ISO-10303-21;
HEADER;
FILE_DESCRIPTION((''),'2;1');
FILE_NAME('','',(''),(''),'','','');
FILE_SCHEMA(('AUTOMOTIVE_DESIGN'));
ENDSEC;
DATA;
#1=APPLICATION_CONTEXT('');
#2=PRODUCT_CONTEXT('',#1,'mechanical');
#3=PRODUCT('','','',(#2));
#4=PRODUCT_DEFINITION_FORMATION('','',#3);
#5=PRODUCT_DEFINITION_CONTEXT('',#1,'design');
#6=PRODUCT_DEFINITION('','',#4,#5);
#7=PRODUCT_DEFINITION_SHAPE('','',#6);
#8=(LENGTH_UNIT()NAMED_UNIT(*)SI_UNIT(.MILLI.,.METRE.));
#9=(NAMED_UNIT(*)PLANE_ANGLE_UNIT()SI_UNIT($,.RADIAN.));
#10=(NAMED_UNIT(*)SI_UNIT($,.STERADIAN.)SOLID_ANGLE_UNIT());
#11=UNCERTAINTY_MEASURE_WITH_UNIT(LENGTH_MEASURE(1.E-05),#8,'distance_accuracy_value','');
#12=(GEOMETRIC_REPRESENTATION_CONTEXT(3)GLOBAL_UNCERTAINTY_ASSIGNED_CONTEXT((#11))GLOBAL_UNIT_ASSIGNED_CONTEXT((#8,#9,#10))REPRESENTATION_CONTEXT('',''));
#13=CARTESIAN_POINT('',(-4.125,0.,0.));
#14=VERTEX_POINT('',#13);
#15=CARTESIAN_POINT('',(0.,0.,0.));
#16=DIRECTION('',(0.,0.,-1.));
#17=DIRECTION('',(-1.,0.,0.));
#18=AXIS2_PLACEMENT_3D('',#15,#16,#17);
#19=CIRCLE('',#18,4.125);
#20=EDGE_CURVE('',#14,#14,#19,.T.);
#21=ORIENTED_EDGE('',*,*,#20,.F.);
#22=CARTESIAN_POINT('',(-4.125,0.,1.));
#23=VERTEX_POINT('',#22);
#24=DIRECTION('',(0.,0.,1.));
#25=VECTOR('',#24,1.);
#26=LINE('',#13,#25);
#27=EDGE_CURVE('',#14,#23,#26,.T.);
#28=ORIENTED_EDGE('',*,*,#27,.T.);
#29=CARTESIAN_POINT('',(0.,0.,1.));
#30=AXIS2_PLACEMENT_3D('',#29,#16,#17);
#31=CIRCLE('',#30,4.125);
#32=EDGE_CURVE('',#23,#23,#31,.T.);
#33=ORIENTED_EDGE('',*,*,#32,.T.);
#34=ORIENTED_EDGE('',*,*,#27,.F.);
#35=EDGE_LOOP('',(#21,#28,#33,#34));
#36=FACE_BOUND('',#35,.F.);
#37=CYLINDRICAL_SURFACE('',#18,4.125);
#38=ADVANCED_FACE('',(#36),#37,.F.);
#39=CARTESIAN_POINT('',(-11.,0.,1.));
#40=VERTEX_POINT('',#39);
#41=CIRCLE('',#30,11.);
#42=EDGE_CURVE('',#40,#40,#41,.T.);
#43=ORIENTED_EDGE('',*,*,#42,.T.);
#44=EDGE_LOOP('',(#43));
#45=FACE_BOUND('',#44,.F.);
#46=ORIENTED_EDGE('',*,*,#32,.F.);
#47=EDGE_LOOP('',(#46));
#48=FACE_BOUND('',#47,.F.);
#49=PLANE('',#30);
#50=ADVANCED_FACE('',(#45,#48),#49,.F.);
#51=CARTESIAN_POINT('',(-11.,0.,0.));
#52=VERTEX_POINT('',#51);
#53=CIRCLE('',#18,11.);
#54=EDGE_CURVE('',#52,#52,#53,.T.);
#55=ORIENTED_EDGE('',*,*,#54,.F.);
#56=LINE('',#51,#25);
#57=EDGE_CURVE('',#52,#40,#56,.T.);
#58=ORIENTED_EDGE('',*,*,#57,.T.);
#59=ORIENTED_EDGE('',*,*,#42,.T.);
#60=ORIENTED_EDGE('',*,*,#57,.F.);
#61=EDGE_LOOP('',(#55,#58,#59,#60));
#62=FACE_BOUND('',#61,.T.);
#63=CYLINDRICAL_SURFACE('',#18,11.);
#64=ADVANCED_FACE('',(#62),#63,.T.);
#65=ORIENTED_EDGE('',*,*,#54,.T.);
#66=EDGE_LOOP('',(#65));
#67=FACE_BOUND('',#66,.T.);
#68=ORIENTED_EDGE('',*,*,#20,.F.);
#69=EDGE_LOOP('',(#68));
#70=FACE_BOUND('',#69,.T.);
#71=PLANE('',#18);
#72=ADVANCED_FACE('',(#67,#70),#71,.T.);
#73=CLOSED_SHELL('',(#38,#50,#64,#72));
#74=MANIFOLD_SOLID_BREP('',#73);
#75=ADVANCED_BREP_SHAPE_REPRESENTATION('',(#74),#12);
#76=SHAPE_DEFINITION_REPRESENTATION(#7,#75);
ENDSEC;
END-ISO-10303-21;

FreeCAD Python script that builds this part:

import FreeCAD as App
import Part
import Sketcher
Q = App.Units.Quantity

doc = App.newDocument("Part")
params = doc.addObject("Spreadsheet::Sheet", "Params")
for row, (alias, value) in enumerate([
    ("sketch1_diameter", "12 mm"),
    ("sketch1_diameter2", "6.25 mm"),
    ("pad1_length", "1 mm"),
    ("sketch2_diameter", "8.25 mm"),
    ("sketch2_diameter2", "6.25 mm"),
    ("sketch3_diameter", "22 mm"),
    ("sketch3_diameter2", "12 mm"),
    ("pad2_length", "1 mm"),
], start=1):
    params.set(f"A{row}", alias)
    params.set(f"B{row}", "=" + value)
    params.setAlias(f"B{row}", alias)

body = doc.addObject("PartDesign::Body", "Body")

sketch1 = body.newObject("Sketcher::SketchObject", "Sketch")
sketch1.AttachmentSupport = (doc.getObject("XY_Plane"), [""])
sketch1.MapMode = "FlatFace"
sketch1.addGeometry(Part.Circle(App.Vector(0, 0, 0), App.Vector(0, 0, 1), 6), False)
sketch1.addGeometry(Part.Circle(App.Vector(0, 0, 0), App.Vector(0, 0, 1), 3.1), False)
sketch1.addConstraint(Sketcher.Constraint("Coincident", 0, 3, -1, 1))
sketch1.addConstraint(Sketcher.Constraint("Coincident", 1, 3, -1, 1))
sketch1.addConstraint(Sketcher.Constraint("Diameter", 0, Q("12 mm")))
sketch1.addConstraint(Sketcher.Constraint("Diameter", 1, Q("6.25 mm")))
sketch1.setExpression("Constraints[2]", "Params.sketch1_diameter")
sketch1.setExpression("Constraints[3]", "Params.sketch1_diameter2")
pad1 = body.newObject("PartDesign::Pad", "Pad")
pad1.Profile = sketch1
pad1.setExpression("Length", "Params.pad1_length")

sketch2 = body.newObject("Sketcher::SketchObject", "Sketch001")
sketch2.AttachmentSupport = (doc.getObject("XY_Plane"), [""])
sketch2.MapMode = "FlatFace"
sketch2.addGeometry(Part.Circle(App.Vector(0, 0, 0), App.Vector(0, 0, 1), 4.1), False)
sketch2.addGeometry(Part.Circle(App.Vector(0, 0, 0), App.Vector(0, 0, 1), 3.1), False)
sketch2.addConstraint(Sketcher.Constraint("Coincident", 0, 3, -1, 1))
sketch2.addConstraint(Sketcher.Constraint("Coincident", 1, 3, -1, 1))
sketch2.addConstraint(Sketcher.Constraint("Diameter", 0, Q("8.25 mm")))
sketch2.addConstraint(Sketcher.Constraint("Diameter", 1, Q("6.25 mm")))
sketch2.setExpression("Constraints[2]", "Params.sketch2_diameter")
sketch2.setExpression("Constraints[3]", "Params.sketch2_diameter2")
pocket1 = body.newObject("PartDesign::Pocket", "Pocket")
pocket1.Profile = sketch2
pocket1.Type = "ThroughAll"
pocket1.Reversed = True

sketch3 = body.newObject("Sketcher::SketchObject", "Sketch002")
sketch3.AttachmentSupport = (doc.getObject("XY_Plane"), [""])
sketch3.MapMode = "FlatFace"
sketch3.addGeometry(Part.Circle(App.Vector(0, 0, 0), App.Vector(0, 0, 1), 11), False)
sketch3.addGeometry(Part.Circle(App.Vector(0, 0, 0), App.Vector(0, 0, 1), 6), False)
sketch3.addConstraint(Sketcher.Constraint("Coincident", 0, 3, -1, 1))
sketch3.addConstraint(Sketcher.Constraint("Coincident", 1, 3, -1, 1))
sketch3.addConstraint(Sketcher.Constraint("Diameter", 0, Q("22 mm")))
sketch3.addConstraint(Sketcher.Constraint("Diameter", 1, Q("12 mm")))
sketch3.setExpression("Constraints[2]", "Params.sketch3_diameter")
sketch3.setExpression("Constraints[3]", "Params.sketch3_diameter2")
pad2 = body.newObject("PartDesign::Pad", "Pad001")
pad2.Profile = sketch3
pad2.setExpression("Length", "Params.pad2_length")

doc.recompute()
